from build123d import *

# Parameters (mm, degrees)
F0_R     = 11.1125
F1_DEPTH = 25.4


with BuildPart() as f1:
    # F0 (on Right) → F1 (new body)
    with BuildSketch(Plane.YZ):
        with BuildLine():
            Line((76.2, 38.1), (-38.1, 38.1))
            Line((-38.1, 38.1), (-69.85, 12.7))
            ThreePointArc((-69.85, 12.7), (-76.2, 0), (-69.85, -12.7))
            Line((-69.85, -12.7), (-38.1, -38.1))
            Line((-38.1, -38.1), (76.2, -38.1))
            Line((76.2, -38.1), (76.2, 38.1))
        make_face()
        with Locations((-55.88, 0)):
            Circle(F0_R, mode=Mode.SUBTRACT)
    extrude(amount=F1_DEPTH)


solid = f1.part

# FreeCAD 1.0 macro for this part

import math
import FreeCAD as App
import Part
import Sketcher
Q = App.Units.Quantity

doc = App.newDocument("Part")
body = doc.addObject("PartDesign::Body", "Body")

sketch1 = body.newObject("Sketcher::SketchObject", "Sketch")
sketch1.AttachmentSupport = (doc.getObject("YZ_Plane"), [""])
sketch1.MapMode = "FlatFace"
sketch1.addGeometry(Part.LineSegment(App.Vector(76, 38, 0), App.Vector(-38, 38, 0)), False)
sketch1.addGeometry(Part.LineSegment(App.Vector(-38, 38, 0), App.Vector(-70, 13, 0)), False)
sketch1.addGeometry(Part.ArcOfCircle(Part.Circle(App.Vector(-60, 0, 0), App.Vector(0, 0, 1), 16), math.radians(127), math.radians(233)), False)
sketch1.addGeometry(Part.LineSegment(App.Vector(-70, -13, 0), App.Vector(-38, -38, 0)), False)
sketch1.addGeometry(Part.LineSegment(App.Vector(-38, -38, 0), App.Vector(76, -38, 0)), False)
sketch1.addGeometry(Part.LineSegment(App.Vector(76, -38, 0), App.Vector(76, 38, 0)), False)
sketch1.addGeometry(Part.Circle(App.Vector(-56, 0, 0), App.Vector(0, 0, 1), 11), False)
sketch1.addConstraint(Sketcher.Constraint("Coincident", 0, 2, 1, 1))
sketch1.addConstraint(Sketcher.Constraint("Coincident", 1, 2, 2, 1))
sketch1.addConstraint(Sketcher.Constraint("Coincident", 2, 2, 3, 1))
sketch1.addConstraint(Sketcher.Constraint("Coincident", 3, 2, 4, 1))
sketch1.addConstraint(Sketcher.Constraint("Coincident", 4, 2, 5, 1))
sketch1.addConstraint(Sketcher.Constraint("Coincident", 5, 2, 0, 1))
sketch1.addConstraint(Sketcher.Constraint("Horizontal", 0))
sketch1.addConstraint(Sketcher.Constraint("Horizontal", 4))
sketch1.addConstraint(Sketcher.Constraint("Vertical", 5))
sketch1.addConstraint(Sketcher.Constraint("Symmetric", 1, 2, 2, 2, -1))
sketch1.addConstraint(Sketcher.Constraint("Symmetric", 0, 2, 3, 2, -1))
sketch1.addConstraint(Sketcher.Constraint("PointOnObject", 6, 3, -1))
sketch1.addConstraint(Sketcher.Constraint("DistanceY", 5, 1, 5, 2, Q("3 in")))
sketch1.addConstraint(Sketcher.Constraint("Diameter", 6, Q("0.875 in")))
sketch1.addConstraint(Sketcher.Constraint("DistanceX", 0, 2, 0, 1, Q("4.5 in")))
sketch1.addConstraint(Sketcher.Constraint("DistanceX", -1, 1, 4, 2, Q("3 in")))
sketch1.addConstraint(Sketcher.Constraint("Radius", 2, Q("0.625 in")))
sketch1.addConstraint(Sketcher.Constraint("DistanceY", 1, 2, 0, 2, Q("1 in")))
sketch1.addConstraint(Sketcher.Constraint("DistanceX", 6, 3, -1, 1, Q("2.2 in")))
sketch1.addConstraint(Sketcher.Constraint("DistanceX", 1, 2, -1, 1, Q("2.75 in")))
pad1 = body.newObject("PartDesign::Pad", "Pad")
pad1.Profile = sketch1
pad1.Length = Q("1 in")

doc.recompute()
